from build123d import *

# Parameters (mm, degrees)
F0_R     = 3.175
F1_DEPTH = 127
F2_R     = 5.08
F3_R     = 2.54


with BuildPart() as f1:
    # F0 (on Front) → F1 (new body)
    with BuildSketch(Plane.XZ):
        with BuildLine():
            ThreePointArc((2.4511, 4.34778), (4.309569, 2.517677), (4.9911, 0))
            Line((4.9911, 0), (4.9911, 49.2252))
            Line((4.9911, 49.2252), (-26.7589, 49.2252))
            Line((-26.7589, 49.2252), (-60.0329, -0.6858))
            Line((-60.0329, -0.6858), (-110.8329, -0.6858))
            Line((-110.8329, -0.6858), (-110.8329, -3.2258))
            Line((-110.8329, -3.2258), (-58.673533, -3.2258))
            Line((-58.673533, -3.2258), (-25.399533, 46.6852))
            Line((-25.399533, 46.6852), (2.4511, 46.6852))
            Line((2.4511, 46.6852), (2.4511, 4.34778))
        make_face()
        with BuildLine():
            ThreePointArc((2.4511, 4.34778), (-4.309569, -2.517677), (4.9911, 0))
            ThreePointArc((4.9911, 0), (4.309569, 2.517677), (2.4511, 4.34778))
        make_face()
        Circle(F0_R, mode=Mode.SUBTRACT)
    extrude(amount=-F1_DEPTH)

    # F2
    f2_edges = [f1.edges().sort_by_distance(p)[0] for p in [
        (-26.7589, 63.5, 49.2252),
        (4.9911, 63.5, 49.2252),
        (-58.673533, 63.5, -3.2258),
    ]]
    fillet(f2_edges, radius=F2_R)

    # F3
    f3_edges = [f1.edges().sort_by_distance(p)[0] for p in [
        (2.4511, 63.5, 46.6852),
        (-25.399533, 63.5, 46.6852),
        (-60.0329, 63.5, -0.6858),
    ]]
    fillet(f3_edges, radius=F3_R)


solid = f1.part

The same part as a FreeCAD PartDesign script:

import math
import FreeCAD as App
import Part
import Sketcher

V = App.Vector
Q = App.Units.Quantity


def edges_at(feature, points):
    """Names of the edges that pass closest to the given points."""
    edges = feature.Shape.Edges
    near = lambda p: min(range(len(edges)), key=lambda i: edges[i].distToShape(Part.Vertex(*p))[0])
    return sorted({f"Edge{near(p) + 1}" for p in points})

doc = App.newDocument("Part")
params = doc.addObject("Spreadsheet::Sheet", "Params")
for row, (alias, value) in enumerate([
    ("sketch1_diameter", "0.25 in"),
    ("sketch1_width", "2 in"),
    ("sketch1_height", "0.1 in"),
    ("sketch1_width2", "1.25 in"),
    ("sketch1_height2", "1.938 in"),
    ("pad1_length", "5 in"),
    ("fillet_radius", "0.2 in"),
    ("fillet2_radius", "0.1 in"),
], start=1):
    params.set(f"A{row}", alias)
    params.set(f"B{row}", "=" + value)
    params.setAlias(f"B{row}", alias)

body = doc.addObject("PartDesign::Body", "Body")

# Sketch on XZ plane
sketch1 = doc.addObject("Sketcher::SketchObject", "Sketch")
body.addObject(sketch1)
sketch1.AttachmentSupport = (doc.XZ_Plane, [""])
sketch1.MapMode = "FlatFace"
sketch1.addGeometry([
    Part.LineSegment(V(5, 0, 0), V(5, 49.2, 0)),  # 0
    Part.LineSegment(V(5, 49.2, 0), V(-26.8, 49.2, 0)),  # 1
    Part.LineSegment(V(-26.8, 49.2, 0), V(-60, -0.7, 0)),  # 2
    Part.LineSegment(V(-60, -0.7, 0), V(-110.8, -0.7, 0)),  # 3
    Part.LineSegment(V(-110.8, -0.7, 0), V(-110.8, -3.2, 0)),  # 4
    Part.LineSegment(V(-110.8, -3.2, 0), V(-58.7, -3.2, 0)),  # 5
    Part.LineSegment(V(-58.7, -3.2, 0), V(-25.4, 46.7, 0)),  # 6
    Part.LineSegment(V(-25.4, 46.7, 0), V(2.5, 46.7, 0)),  # 7
    Part.LineSegment(V(2.5, 46.7, 0), V(2.5, 4.3, 0)),  # 8
    Part.ArcOfCircle(Part.Circle(V(0, 0, 0), V(0, 0, 1), 5), math.radians(61), math.radians(360)),  # 9
    Part.Circle(V(0, 0, 0), V(0, 0, 1), 3.2),  # 10
], False)
sketch1.addConstraint([
    Sketcher.Constraint("Coincident", 0, 2, 1, 1),
    Sketcher.Constraint("Coincident", 1, 2, 2, 1),
    Sketcher.Constraint("Coincident", 2, 2, 3, 1),
    Sketcher.Constraint("Coincident", 3, 2, 4, 1),
    Sketcher.Constraint("Coincident", 4, 2, 5, 1),
    Sketcher.Constraint("Coincident", 5, 2, 6, 1),
    Sketcher.Constraint("Coincident", 6, 2, 7, 1),
    Sketcher.Constraint("Coincident", 7, 2, 8, 1),
    Sketcher.Constraint("Coincident", 8, 2, 9, 1),
    Sketcher.Constraint("Tangent", 9, 2, 0, 1),
    Sketcher.Constraint("Vertical", 0),
    Sketcher.Constraint("Horizontal", 1),
    Sketcher.Constraint("Horizontal", 3),
    Sketcher.Constraint("Vertical", 4),
    Sketcher.Constraint("Horizontal", 5),
    Sketcher.Constraint("Horizontal", 7),
    Sketcher.Constraint("Vertical", 8),
    Sketcher.Constraint("Coincident", 9, 3, -1, 1),
    Sketcher.Constraint("Coincident", 10, 3, -1, 1),
    Sketcher.Constraint("Parallel", 2, 6),
    Sketcher.Constraint("Equal", 2, 6),
    Sketcher.Constraint("Diameter", 10, Q("0.25 in")),
    Sketcher.Constraint("DistanceX", 3, 2, 3, 1, Q("2 in")),
    Sketcher.Constraint("DistanceY", 4, 2, 4, 1, Q("0.1 in")),
    Sketcher.Constraint("DistanceX", 1, 2, 1, 1, Q("1.25 in")),
    Sketcher.Constraint("Radius", 9, Q("0.1965 in")),
    Sketcher.Constraint("DistanceX", 7, 2, 0, 2, Q("0.1 in")),
    Sketcher.Constraint("DistanceY", 0, 1, 0, 2, Q("1.938 in")),
    Sketcher.Constraint("DistanceX", 2, 2, 1, 2, Q("1.31 in")),
    Sketcher.Constraint("DistanceY", 2, 2, -1, 1, Q("0.027 in")),
    Sketcher.Constraint("DistanceX", 5, 1, 5, 2, Q("52.159367 mm")),
])
sketch1.setExpression("Constraints[21]", "Params.sketch1_diameter")
sketch1.setExpression("Constraints[22]", "Params.sketch1_width")
sketch1.setExpression("Constraints[23]", "Params.sketch1_height")
sketch1.setExpression("Constraints[24]", "Params.sketch1_width2")
sketch1.setExpression("Constraints[27]", "Params.sketch1_height2")
pad1 = doc.addObject("PartDesign::Pad", "Pad")
body.addObject(pad1)
pad1.Profile = sketch1
pad1.setExpression("Length", "Params.pad1_length")
pad1.Reversed = True
doc.recompute()

fillet = doc.addObject("PartDesign::Fillet", "Fillet")
body.addObject(fillet)
fillet.Base = (pad1, edges_at(pad1, [(-26.759, 63.5, 49.225), (4.991, 63.5, 49.225), (-58.674, 63.5, -3.226)]))
fillet.setExpression("Radius", "Params.fillet_radius")
doc.recompute()

fillet2 = doc.addObject("PartDesign::Fillet", "Fillet001")
body.addObject(fillet2)
fillet2.Base = (fillet, edges_at(fillet, [(2.451, 63.5, 46.685), (-25.4, 63.5, 46.685), (-60.033, 63.5, -0.686)]))
fillet2.setExpression("Radius", "Params.fillet2_radius")

doc.recompute()
